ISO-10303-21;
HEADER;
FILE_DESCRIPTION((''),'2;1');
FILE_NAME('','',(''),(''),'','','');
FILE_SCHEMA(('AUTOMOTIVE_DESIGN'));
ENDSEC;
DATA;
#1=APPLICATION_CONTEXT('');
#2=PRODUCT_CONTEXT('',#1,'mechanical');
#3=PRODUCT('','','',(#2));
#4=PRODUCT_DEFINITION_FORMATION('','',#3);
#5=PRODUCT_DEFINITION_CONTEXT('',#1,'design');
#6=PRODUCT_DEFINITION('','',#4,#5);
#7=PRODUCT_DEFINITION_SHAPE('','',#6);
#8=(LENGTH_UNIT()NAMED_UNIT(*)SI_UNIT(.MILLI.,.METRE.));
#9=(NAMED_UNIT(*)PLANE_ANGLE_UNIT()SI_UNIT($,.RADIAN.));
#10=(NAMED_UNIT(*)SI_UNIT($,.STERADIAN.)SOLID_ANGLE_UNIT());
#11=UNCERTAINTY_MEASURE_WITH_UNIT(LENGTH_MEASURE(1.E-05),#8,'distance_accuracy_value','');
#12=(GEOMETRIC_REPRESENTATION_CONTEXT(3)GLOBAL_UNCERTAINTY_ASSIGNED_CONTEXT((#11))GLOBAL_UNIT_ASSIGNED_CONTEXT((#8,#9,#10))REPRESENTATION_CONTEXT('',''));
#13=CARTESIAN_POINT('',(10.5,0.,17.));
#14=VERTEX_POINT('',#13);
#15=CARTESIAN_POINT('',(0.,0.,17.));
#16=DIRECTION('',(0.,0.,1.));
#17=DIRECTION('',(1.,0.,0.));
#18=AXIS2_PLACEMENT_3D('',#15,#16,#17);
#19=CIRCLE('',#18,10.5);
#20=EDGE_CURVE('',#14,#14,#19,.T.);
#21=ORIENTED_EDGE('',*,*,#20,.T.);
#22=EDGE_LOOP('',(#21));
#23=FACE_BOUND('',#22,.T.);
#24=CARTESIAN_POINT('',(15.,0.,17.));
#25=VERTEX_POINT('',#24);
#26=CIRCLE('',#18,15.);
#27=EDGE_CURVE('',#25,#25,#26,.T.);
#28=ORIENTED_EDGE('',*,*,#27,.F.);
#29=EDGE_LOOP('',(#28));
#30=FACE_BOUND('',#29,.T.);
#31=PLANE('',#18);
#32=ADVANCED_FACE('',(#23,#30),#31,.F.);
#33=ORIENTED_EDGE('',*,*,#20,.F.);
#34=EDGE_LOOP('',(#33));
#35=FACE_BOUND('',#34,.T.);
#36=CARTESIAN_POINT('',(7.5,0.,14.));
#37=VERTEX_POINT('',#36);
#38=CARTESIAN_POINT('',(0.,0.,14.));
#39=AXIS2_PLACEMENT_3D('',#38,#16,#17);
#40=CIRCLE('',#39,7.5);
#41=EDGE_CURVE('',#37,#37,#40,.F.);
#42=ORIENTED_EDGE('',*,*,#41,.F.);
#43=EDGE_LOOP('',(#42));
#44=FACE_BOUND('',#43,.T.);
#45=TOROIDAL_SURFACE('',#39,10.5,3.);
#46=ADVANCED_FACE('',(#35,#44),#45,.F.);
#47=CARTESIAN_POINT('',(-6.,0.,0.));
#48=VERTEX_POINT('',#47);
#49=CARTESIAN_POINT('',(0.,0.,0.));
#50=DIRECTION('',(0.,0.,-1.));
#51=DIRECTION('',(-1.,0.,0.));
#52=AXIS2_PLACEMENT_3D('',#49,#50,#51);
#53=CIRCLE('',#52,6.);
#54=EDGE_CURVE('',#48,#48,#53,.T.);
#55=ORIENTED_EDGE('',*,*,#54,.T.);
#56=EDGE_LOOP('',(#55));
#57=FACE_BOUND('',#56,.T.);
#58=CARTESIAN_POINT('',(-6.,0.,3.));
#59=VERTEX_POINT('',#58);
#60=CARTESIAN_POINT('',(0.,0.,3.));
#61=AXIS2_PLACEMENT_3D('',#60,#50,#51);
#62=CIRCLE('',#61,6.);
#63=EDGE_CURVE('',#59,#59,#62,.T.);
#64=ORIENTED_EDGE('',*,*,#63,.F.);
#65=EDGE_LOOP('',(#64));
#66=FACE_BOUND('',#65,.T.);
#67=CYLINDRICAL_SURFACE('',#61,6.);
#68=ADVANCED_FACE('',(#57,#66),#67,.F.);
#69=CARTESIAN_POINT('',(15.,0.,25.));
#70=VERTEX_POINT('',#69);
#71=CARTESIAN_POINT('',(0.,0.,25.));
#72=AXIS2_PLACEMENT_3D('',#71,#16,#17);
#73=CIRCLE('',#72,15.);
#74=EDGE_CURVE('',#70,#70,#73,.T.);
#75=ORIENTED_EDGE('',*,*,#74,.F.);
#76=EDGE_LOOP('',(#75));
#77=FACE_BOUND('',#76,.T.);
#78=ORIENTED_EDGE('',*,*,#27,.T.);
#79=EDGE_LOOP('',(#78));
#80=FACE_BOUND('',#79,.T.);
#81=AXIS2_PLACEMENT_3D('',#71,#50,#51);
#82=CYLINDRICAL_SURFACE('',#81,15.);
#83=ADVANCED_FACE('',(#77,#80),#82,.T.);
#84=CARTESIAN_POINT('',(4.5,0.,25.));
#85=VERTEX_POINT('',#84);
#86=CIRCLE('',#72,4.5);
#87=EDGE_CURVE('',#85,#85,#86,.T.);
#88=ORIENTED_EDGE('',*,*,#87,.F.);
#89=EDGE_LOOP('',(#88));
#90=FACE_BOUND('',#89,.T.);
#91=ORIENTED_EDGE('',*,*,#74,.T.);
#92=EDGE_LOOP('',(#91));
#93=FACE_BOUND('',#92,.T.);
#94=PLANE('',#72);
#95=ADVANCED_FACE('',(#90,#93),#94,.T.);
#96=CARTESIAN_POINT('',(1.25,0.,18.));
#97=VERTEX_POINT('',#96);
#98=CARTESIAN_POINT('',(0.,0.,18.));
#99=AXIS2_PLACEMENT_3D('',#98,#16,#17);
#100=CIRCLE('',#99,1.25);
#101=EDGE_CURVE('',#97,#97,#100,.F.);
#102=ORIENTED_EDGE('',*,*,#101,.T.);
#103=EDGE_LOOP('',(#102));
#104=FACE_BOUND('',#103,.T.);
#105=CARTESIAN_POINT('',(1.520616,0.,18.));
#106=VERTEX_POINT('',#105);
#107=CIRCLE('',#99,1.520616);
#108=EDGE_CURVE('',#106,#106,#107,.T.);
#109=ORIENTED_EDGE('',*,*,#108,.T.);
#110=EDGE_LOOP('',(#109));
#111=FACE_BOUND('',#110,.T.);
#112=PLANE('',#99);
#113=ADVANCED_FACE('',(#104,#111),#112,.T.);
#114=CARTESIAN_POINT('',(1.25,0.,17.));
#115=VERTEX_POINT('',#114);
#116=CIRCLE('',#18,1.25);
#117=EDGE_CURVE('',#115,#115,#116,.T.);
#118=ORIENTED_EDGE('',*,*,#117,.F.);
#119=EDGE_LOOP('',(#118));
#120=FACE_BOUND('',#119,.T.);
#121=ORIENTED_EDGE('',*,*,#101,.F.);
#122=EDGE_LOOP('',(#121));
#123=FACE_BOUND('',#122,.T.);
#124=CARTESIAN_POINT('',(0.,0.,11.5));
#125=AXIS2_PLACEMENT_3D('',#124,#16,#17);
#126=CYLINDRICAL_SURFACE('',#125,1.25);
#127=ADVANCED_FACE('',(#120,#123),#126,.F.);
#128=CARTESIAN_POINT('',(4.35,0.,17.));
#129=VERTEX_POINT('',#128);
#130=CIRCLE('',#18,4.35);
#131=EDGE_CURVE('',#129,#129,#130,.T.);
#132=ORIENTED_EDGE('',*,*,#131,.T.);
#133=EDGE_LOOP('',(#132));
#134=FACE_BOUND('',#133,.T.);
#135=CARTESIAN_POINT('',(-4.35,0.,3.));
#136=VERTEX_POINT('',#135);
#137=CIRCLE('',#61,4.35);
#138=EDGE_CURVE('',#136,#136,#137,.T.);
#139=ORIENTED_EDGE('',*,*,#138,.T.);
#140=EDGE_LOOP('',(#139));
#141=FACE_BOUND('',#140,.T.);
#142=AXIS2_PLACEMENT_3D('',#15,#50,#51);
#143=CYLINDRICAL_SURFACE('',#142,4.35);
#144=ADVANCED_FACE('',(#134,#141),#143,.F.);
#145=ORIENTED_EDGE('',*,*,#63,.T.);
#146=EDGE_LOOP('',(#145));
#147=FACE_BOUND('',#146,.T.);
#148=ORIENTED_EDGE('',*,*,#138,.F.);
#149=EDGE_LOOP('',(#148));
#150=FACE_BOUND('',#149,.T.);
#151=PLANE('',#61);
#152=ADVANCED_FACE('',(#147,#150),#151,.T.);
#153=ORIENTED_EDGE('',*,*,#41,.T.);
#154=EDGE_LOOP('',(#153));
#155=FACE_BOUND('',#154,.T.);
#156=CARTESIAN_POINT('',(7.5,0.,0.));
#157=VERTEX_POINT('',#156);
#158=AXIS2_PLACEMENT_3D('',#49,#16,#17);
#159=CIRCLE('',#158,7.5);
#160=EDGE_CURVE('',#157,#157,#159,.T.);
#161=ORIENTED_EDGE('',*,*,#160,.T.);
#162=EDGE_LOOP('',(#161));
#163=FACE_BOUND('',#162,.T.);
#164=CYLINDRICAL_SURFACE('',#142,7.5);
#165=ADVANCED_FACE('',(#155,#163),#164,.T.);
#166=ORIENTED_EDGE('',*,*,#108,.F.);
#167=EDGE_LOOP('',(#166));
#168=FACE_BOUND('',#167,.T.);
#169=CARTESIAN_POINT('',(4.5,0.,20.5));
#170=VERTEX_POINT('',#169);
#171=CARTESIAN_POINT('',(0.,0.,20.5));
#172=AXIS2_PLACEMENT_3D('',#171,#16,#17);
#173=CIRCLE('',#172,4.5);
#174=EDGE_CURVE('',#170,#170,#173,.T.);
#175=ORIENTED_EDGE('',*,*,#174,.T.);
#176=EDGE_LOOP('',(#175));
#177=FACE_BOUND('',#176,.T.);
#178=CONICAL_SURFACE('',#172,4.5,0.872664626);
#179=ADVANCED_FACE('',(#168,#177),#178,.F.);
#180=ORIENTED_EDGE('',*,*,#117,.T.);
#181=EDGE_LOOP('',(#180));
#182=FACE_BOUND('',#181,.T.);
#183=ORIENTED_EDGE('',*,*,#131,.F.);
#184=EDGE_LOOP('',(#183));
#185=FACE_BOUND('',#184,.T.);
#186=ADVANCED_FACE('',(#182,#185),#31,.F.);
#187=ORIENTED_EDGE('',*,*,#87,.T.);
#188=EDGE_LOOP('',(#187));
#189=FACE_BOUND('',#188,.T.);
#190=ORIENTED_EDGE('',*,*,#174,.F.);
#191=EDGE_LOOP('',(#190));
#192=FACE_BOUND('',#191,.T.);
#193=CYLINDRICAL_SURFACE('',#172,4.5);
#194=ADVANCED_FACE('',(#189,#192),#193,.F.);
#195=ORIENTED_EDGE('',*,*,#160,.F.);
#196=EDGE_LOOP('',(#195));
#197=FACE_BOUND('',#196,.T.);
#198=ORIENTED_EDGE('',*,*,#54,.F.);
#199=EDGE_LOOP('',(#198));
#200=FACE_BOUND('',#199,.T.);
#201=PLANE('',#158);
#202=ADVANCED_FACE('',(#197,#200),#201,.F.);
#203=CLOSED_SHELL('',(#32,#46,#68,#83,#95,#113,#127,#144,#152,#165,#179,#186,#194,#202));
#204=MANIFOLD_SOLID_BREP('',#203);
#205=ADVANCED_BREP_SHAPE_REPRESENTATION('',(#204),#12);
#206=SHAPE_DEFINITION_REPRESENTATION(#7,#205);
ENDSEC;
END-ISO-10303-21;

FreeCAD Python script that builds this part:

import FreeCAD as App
import Part
import Sketcher
Q = App.Units.Quantity


def edges_at(feature, points):
    """Names of the edges that pass closest to the given points."""
    edges = feature.Shape.Edges
    near = lambda p: min(range(len(edges)), key=lambda i: edges[i].distToShape(Part.Vertex(*p))[0])
    return sorted({f"Edge{near(p) + 1}" for p in points})


def faces_at(feature, points):
    """Names of the faces that lie closest to the given points."""
    faces = feature.Shape.Faces
    near = lambda p: min(range(len(faces)), key=lambda i: faces[i].distToShape(Part.Vertex(*p))[0])
    return sorted({f"Face{near(p) + 1}" for p in points})

doc = App.newDocument("Part")
body = doc.addObject("PartDesign::Body", "Body")

# Sketch on XY plane
sketch1 = body.newObject("Sketcher::SketchObject", "Sketch")
sketch1.AttachmentSupport = (doc.getObject("XY_Plane"), [""])
sketch1.MapMode = "FlatFace"
sketch1.addGeometry(Part.Circle(App.Vector(0, 0, 0), App.Vector(0, 0, 1), 7.5), False)
sketch1.addGeometry(Part.Circle(App.Vector(0, 0, 0), App.Vector(0, 0, 1), 4.35), False)
sketch1.addConstraint(Sketcher.Constraint("Coincident", 0, 3, -1, 1))
sketch1.addConstraint(Sketcher.Constraint("Coincident", 1, 3, -1, 1))
sketch1.addConstraint(Sketcher.Constraint("Diameter", 0, Q("15 mm")))
sketch1.addConstraint(Sketcher.Constraint("Diameter", 1, Q("8.7 mm")))
pad1 = body.newObject("PartDesign::Pad", "Pad")
pad1.Profile = sketch1
pad1.Length = 17

# Sketch on XY plane
sketch2 = body.newObject("Sketcher::SketchObject", "Sketch001")
sketch2.AttachmentSupport = (doc.getObject("XY_Plane"), [""])
sketch2.MapMode = "FlatFace"
sketch2.addGeometry(Part.Circle(App.Vector(0, 0, 0), App.Vector(0, 0, 1), 6), False)
sketch2.addConstraint(Sketcher.Constraint("Coincident", 0, 3, -1, 1))
sketch2.addConstraint(Sketcher.Constraint("Diameter", 0, Q("12 mm")))
pocket1 = body.newObject("PartDesign::Pocket", "Pocket")
pocket1.Profile = sketch2
pocket1.Length = 3
pocket1.Reversed = True

# Sketch on XY plane
sketch3 = body.newObject("Sketcher::SketchObject", "Sketch002")
sketch3.AttachmentSupport = (doc.getObject("XY_Plane"), [""])
sketch3.MapMode = "FlatFace"
sketch3.AttachmentOffset = App.Placement(App.Vector(0, 0, 17), App.Rotation())
sketch3.addGeometry(Part.Circle(App.Vector(0, 0, 0), App.Vector(0, 0, 1), 7.5), False)
sketch3.addConstraint(Sketcher.Constraint("Coincident", 0, 3, -1, 1))
sketch3.addConstraint(Sketcher.Constraint("Diameter", 0, Q("15 mm")))
pad2 = body.newObject("PartDesign::Pad", "Pad001")
pad2.Profile = sketch3
pad2.Length = 8

# Sketch on XY plane
sketch4 = body.newObject("Sketcher::SketchObject", "Sketch003")
sketch4.AttachmentSupport = (doc.getObject("XY_Plane"), [""])
sketch4.MapMode = "FlatFace"
sketch4.AttachmentOffset = App.Placement(App.Vector(0, 0, 25), App.Rotation())
sketch4.addGeometry(Part.Circle(App.Vector(0, 0, 0), App.Vector(0, 0, 1), 1.25), False)
sketch4.addConstraint(Sketcher.Constraint("Coincident", 0, 3, -1, 1))
sketch4.addConstraint(Sketcher.Constraint("Diameter", 0, Q("2.5 mm")))
pocket2 = body.newObject("PartDesign::Pocket", "Pocket001")
pocket2.Profile = sketch4
pocket2.Length = 27
pocket2.Midplane = True

# Sketch on XY plane
sketch5 = body.newObject("Sketcher::SketchObject", "Sketch004")
sketch5.AttachmentSupport = (doc.getObject("XY_Plane"), [""])
sketch5.MapMode = "FlatFace"
sketch5.AttachmentOffset = App.Placement(App.Vector(0, 0, 25), App.Rotation())
sketch5.addGeometry(Part.Circle(App.Vector(0, 0, 0), App.Vector(0, 0, 1), 4.5), False)
sketch5.addConstraint(Sketcher.Constraint("Coincident", 0, 3, -1, 1))
sketch5.addConstraint(Sketcher.Constraint("Diameter", 0, Q("9 mm")))
pocket3 = body.newObject("PartDesign::Pocket", "Pocket002")
pocket3.Profile = sketch5
pocket3.Length = 4.5
body2 = doc.addObject("PartDesign::Body", "Body001")

# Sketch on XY plane
sketch6 = body2.newObject("Sketcher::SketchObject", "Sketch005")
sketch6.AttachmentSupport = (doc.getObject("XY_Plane001"), [""])
sketch6.MapMode = "FlatFace"
sketch6.AttachmentOffset = App.Placement(App.Vector(0, 0, 20.5), App.Rotation())
sketch6.addGeometry(Part.Circle(App.Vector(0, 0, 0), App.Vector(0, 0, 1), 4.5), False)
sketch6.addConstraint(Sketcher.Constraint("Coincident", 0, 3, -1, 1))
sketch6.addConstraint(Sketcher.Constraint("Diameter", 0, Q("9 mm")))
pad3 = body2.newObject("PartDesign::Pad", "Pad002")
pad3.Profile = sketch6
pad3.Length = 2.5
pad3.Reversed = True
doc.recompute()

datumplane = body2.newObject("PartDesign::Plane", "DatumPlane")
datumplane.AttachmentSupport = (doc.getObject("XY_Plane001"), [""])
datumplane.MapMode = "FlatFace"
datumplane.AttachmentOffset = App.Placement(App.Vector(0, 0, 20.5), App.Rotation())
draft = body2.newObject("PartDesign::Draft", "Draft")
draft.Base = (pad3, faces_at(pad3, [(-4.5, 0, 19.25)]))
draft.NeutralPlane = (datumplane, [""])
draft.Angle = 50
draft.Reversed = True
doc.recompute()

boolean = body.newObject("PartDesign::Boolean", "Boolean")
boolean.Type = "Cut"
boolean.addObjects([body2])

# Sketch on XY plane
sketch7 = body.newObject("Sketcher::SketchObject", "Sketch006")
sketch7.AttachmentSupport = (doc.getObject("XY_Plane"), [""])
sketch7.MapMode = "FlatFace"
sketch7.AttachmentOffset = App.Placement(App.Vector(0, 0, 17), App.Rotation())
sketch7.addGeometry(Part.Circle(App.Vector(0, 0, 0), App.Vector(0, 0, 1), 15), False)
sketch7.addGeometry(Part.Circle(App.Vector(0, 0, 0), App.Vector(0, 0, 1), 7.5), False)
sketch7.addConstraint(Sketcher.Constraint("Coincident", 0, 3, -1, 1))
sketch7.addConstraint(Sketcher.Constraint("Coincident", 1, 3, -1, 1))
sketch7.addConstraint(Sketcher.Constraint("Diameter", 0, Q("30 mm")))
sketch7.addConstraint(Sketcher.Constraint("Diameter", 1, Q("15 mm")))
pad4 = body.newObject("PartDesign::Pad", "Pad003")
pad4.Profile = sketch7
pad4.Length = 8
doc.recompute()

fillet = body.newObject("PartDesign::Fillet", "Fillet")
fillet.Base = (pad4, edges_at(pad4, [(-7.5, 0, 17)]))
fillet.Radius = 3

doc.recompute()
